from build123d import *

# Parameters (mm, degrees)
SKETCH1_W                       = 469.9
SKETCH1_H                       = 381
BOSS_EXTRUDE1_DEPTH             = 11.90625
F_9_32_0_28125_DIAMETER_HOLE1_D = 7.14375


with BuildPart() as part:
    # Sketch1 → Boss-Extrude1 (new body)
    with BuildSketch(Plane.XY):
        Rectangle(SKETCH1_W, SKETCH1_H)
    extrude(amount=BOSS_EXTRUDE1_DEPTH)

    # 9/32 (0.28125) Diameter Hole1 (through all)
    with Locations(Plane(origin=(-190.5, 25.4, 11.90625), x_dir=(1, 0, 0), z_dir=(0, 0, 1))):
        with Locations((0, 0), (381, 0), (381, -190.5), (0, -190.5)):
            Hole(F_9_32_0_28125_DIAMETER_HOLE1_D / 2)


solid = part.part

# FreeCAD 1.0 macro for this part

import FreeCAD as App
import Part
import Sketcher
Q = App.Units.Quantity

doc = App.newDocument("Part")
body = doc.addObject("PartDesign::Body", "Body")

sketch1 = doc.addObject("Sketcher::SketchObject", "Sketch")
body.addObject(sketch1)
sketch1.AttachmentSupport = (doc.XY_Plane, [""])
sketch1.MapMode = "FlatFace"
sketch1.addGeometry([
    Part.LineSegment(App.Vector(-235, 190, 0), App.Vector(-235, -190, 0)),
    Part.LineSegment(App.Vector(-235, -190, 0), App.Vector(235, -190, 0)),
    Part.LineSegment(App.Vector(235, -190, 0), App.Vector(235, 190, 0)),
    Part.LineSegment(App.Vector(235, 190, 0), App.Vector(-235, 190, 0)),
], False)
sketch1.addConstraint([
    Sketcher.Constraint("Coincident", 0, 2, 1, 1),
    Sketcher.Constraint("Coincident", 1, 2, 2, 1),
    Sketcher.Constraint("Coincident", 2, 2, 3, 1),
    Sketcher.Constraint("Coincident", 3, 2, 0, 1),
    Sketcher.Constraint("Vertical", 0),
    Sketcher.Constraint("Horizontal", 1),
    Sketcher.Constraint("Vertical", 2),
    Sketcher.Constraint("Horizontal", 3),
    Sketcher.Constraint("Symmetric", 0, 2, 2, 2, -1, 1),
    Sketcher.Constraint("DistanceY", 0, 2, 0, 1, Q("15 in")),
    Sketcher.Constraint("DistanceX", 1, 1, 1, 2, Q("18.5 in")),
])
pad1 = doc.addObject("PartDesign::Pad", "Pad")
body.addObject(pad1)
pad1.Profile = sketch1
pad1.Length = Q("0.46875 in")

sketch2 = doc.addObject("Sketcher::SketchObject", "Sketch001")
body.addObject(sketch2)
sketch2.AttachmentSupport = (doc.XY_Plane, [""])
sketch2.MapMode = "FlatFace"
sketch2.AttachmentOffset = App.Placement(App.Vector(0, 0, 0.46875 * 25.4), App.Rotation())
sketch2.addGeometry([
    Part.Circle(App.Vector(-190.5, 25.4, 0), App.Vector(0, 0, 1), 3.6),
    Part.Circle(App.Vector(190.5, 25.4, 0), App.Vector(0, 0, 1), 3.6),
    Part.Circle(App.Vector(190.5, -165.1, 0), App.Vector(0, 0, 1), 3.6),
    Part.Circle(App.Vector(-190.5, -165.1, 0), App.Vector(0, 0, 1), 3.6),
], False)
sketch2.addConstraint([
    Sketcher.Constraint("Equal", 0, 1),
    Sketcher.Constraint("Equal", 1, 2),
    Sketcher.Constraint("Equal", 2, 3),
    Sketcher.Constraint("Symmetric", 0, 3, 1, 3, -2),
    Sketcher.Constraint("Symmetric", 2, 3, 3, 3, -2),
    Sketcher.Constraint("Vertical", 1, 3, 2, 3),
    Sketcher.Constraint("Diameter", 0, Q("0.28125 in")),
    Sketcher.Constraint("DistanceY", -1, 1, 0, 3, Q("1 in")),
    Sketcher.Constraint("DistanceX", 0, 3, 1, 3, Q("15 in")),
    Sketcher.Constraint("DistanceY", 2, 3, -1, 1, Q("6.5 in")),
])
doc.recompute()
hole = doc.addObject("PartDesign::Hole", "Hole")
body.addObject(hole)
hole.Profile = sketch2
hole.ThreadType = "None"
hole.Diameter = Q("0.28125 in")
hole.DepthType = "ThroughAll"

doc.recompute()
